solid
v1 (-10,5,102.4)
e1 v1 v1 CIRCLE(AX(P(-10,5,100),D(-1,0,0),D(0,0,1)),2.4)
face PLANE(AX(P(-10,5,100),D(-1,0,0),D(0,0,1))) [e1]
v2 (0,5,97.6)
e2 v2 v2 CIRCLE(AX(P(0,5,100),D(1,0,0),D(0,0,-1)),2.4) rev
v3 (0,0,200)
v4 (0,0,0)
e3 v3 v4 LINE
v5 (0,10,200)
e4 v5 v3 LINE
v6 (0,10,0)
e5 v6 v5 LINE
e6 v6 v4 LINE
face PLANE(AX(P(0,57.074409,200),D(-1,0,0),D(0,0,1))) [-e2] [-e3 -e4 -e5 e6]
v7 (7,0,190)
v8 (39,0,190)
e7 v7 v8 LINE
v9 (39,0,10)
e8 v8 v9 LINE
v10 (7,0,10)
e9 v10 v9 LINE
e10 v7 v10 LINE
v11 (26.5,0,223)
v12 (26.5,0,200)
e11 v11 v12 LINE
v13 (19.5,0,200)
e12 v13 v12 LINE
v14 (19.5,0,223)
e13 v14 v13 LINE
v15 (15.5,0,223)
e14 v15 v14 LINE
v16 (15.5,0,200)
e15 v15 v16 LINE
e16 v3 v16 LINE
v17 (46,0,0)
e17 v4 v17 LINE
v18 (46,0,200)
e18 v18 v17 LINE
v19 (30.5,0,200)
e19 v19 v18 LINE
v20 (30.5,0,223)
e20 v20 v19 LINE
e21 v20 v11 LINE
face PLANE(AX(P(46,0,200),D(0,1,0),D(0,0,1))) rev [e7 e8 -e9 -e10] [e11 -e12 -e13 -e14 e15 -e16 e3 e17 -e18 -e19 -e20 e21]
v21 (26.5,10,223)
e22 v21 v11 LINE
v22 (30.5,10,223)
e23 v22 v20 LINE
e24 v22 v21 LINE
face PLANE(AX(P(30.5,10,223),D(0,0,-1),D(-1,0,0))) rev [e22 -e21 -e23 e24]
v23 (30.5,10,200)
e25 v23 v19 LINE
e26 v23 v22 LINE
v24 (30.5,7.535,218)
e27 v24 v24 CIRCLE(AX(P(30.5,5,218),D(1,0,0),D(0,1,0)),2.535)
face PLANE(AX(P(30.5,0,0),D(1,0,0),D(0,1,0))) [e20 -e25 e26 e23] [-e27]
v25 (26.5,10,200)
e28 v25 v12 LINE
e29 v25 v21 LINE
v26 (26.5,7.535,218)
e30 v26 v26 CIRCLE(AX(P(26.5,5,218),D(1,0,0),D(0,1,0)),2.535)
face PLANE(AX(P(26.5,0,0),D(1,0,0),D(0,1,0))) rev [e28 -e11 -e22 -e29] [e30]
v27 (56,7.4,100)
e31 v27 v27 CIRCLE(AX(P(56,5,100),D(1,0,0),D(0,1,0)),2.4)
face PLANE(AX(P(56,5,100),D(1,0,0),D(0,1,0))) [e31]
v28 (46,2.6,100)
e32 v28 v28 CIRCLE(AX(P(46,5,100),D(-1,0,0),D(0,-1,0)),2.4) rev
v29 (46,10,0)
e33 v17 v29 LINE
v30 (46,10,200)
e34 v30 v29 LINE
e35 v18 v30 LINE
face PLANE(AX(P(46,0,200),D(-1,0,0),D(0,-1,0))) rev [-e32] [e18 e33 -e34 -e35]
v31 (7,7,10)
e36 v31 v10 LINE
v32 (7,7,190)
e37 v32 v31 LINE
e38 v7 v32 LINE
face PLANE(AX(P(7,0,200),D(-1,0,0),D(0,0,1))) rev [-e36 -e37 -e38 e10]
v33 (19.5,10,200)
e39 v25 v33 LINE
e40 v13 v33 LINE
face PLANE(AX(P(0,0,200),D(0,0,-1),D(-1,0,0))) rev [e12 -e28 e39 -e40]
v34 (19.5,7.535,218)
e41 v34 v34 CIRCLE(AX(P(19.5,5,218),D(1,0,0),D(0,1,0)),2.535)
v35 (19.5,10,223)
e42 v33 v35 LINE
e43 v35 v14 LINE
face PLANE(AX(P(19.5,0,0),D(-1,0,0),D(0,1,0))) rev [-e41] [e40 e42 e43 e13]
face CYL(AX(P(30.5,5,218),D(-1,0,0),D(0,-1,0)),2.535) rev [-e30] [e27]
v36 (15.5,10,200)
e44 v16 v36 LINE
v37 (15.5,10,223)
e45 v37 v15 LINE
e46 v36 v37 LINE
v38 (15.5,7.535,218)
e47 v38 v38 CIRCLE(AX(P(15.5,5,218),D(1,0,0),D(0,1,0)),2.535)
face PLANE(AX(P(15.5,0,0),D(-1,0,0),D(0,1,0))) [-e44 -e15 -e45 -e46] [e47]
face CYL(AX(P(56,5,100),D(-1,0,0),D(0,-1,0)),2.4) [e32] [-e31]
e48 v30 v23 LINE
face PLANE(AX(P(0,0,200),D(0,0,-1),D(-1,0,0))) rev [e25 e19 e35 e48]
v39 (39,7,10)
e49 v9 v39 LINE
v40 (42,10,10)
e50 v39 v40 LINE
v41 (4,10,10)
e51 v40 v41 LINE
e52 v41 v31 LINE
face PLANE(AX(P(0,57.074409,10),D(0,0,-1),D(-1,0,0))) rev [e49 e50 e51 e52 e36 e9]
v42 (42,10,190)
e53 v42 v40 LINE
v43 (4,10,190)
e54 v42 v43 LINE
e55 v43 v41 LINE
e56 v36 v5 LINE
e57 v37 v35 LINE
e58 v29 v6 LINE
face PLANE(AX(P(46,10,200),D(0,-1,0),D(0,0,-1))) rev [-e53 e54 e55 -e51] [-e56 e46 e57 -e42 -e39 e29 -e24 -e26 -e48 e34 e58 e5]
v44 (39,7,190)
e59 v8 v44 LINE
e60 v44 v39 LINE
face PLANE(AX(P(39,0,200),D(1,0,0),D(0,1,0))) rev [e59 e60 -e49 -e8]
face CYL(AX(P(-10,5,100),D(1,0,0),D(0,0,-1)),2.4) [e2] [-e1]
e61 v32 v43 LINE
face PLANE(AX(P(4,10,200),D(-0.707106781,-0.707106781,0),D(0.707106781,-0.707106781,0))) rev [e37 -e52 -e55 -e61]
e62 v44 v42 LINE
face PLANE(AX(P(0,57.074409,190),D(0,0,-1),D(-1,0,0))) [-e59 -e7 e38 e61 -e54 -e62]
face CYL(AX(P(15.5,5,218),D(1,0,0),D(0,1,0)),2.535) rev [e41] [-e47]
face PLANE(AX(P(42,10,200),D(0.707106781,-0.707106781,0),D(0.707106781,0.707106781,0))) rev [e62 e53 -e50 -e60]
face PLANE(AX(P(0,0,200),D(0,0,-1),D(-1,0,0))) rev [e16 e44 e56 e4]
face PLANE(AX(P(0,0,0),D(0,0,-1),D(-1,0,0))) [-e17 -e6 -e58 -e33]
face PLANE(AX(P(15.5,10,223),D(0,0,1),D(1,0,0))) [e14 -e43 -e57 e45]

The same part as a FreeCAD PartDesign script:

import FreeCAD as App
import Part
import Sketcher

V = App.Vector
Q = App.Units.Quantity


def add_polygon(sketch, points):
    """Adds a closed chain of lines whose ends are joined by coincident constraints."""
    first, n = sketch.GeometryCount, len(points)
    for a, b in zip(points, points[1:] + points[:1]):
        sketch.addGeometry(Part.LineSegment(App.Vector(*a, 0), App.Vector(*b, 0)), False)
    for i in range(n):
        sketch.addConstraint(Sketcher.Constraint("Coincident", first + i, 2, first + (i + 1) % n, 1))

doc = App.newDocument("Part")
params = doc.addObject("Spreadsheet::Sheet", "Params")
for row, (alias, value) in enumerate([
    ("sketch1_width", "4 mm"),
    ("sketch1_width2", "7 mm"),
    ("sketch1_height", "10 mm"),
    ("pad1_length", "200 mm"),
    ("sketch2_diameter", "4.8 mm"),
    ("pad2_length", "10 mm"),
    ("sketch3_width", "7 mm"),
    ("sketch3_width2", "4 mm"),
    ("sketch3_height", "10 mm"),
    ("pad3_length", "200 mm"),
    ("sketch4_diameter", "4.8 mm"),
    ("pad4_length", "10 mm"),
    ("sketch5_width", "46 mm"),
    ("sketch5_height", "10 mm"),
    ("pad5_length", "10 mm"),
    ("sketch6_diameter", "5.07 mm"),
    ("sketch6_width", "10 mm"),
    ("sketch6_height", "33 mm"),
    ("pad6_length", "4 mm"),
], start=1):
    params.set(f"A{row}", alias)
    params.set(f"B{row}", "=" + value)
    params.setAlias(f"B{row}", alias)

body = doc.addObject("PartDesign::Body", "Body")

# Sketch on XY plane
sketch1 = body.newObject("Sketcher::SketchObject", "Sketch")
sketch1.AttachmentSupport = (doc.getObject("XY_Plane"), [""])
sketch1.MapMode = "FlatFace"
add_polygon(sketch1, [(7, 7), (4, 10), (0, 10), (0, 0), (7, 0)])  # lines 0-4
sketch1.addConstraint([
    Sketcher.Constraint("Horizontal", 1),
    Sketcher.Constraint("Vertical", 2),
    Sketcher.Constraint("Horizontal", 3),
    Sketcher.Constraint("Vertical", 4),
    Sketcher.Constraint("Coincident", 2, 2, -1, 1),
    Sketcher.Constraint("Equal", 3, 4),
    Sketcher.Constraint("DistanceX", 1, 2, 1, 1, Q("4 mm")),
    Sketcher.Constraint("DistanceX", 3, 1, 3, 2, Q("7 mm")),
    Sketcher.Constraint("DistanceY", 2, 2, 2, 1, Q("10 mm")),
])
sketch1.setExpression("Constraints[11]", "Params.sketch1_width")
sketch1.setExpression("Constraints[12]", "Params.sketch1_width2")
sketch1.setExpression("Constraints[13]", "Params.sketch1_height")
pad1 = body.newObject("PartDesign::Pad", "Pad")
pad1.Profile = sketch1
pad1.setExpression("Length", "Params.pad1_length")

# Sketch on YZ plane
sketch2 = body.newObject("Sketcher::SketchObject", "Sketch001")
sketch2.AttachmentSupport = (doc.getObject("YZ_Plane"), [""])
sketch2.MapMode = "FlatFace"
sketch2.addGeometry(Part.Circle(V(5, 100, 0), V(0, 0, 1), 2.4), False)
sketch2.addConstraint([
    Sketcher.Constraint("Diameter", 0, Q("4.8 mm")),
    Sketcher.Constraint("DistanceX", -1, 1, 0, 3, Q("5 mm")),
    Sketcher.Constraint("DistanceY", -1, 1, 0, 3, Q("100 mm")),
])
sketch2.setExpression("Constraints[0]", "Params.sketch2_diameter")
pad2 = body.newObject("PartDesign::Pad", "Pad001")
pad2.Profile = sketch2
pad2.setExpression("Length", "Params.pad2_length")
pad2.Reversed = True
body2 = doc.addObject("PartDesign::Body", "Body001")

# Sketch on XY plane
sketch3 = body2.newObject("Sketcher::SketchObject", "Sketch002")
sketch3.AttachmentSupport = (doc.getObject("XY_Plane001"), [""])
sketch3.MapMode = "FlatFace"
add_polygon(sketch3, [(39, 7), (39, 0), (46, 0), (46, 10), (42, 10)])  # lines 0-4
sketch3.addConstraint([
    Sketcher.Constraint("Vertical", 0),
    Sketcher.Constraint("Horizontal", 1),
    Sketcher.Constraint("Vertical", 2),
    Sketcher.Constraint("Horizontal", 3),
    Sketcher.Constraint("PointOnObject", 0, 2, -1),
    Sketcher.Constraint("Equal", 1, 0),
    Sketcher.Constraint("DistanceX", 1, 1, 1, 2, Q("7 mm")),
    Sketcher.Constraint("DistanceX", 3, 2, 3, 1, Q("4 mm")),
    Sketcher.Constraint("DistanceY", 2, 1, 2, 2, Q("10 mm")),
    Sketcher.Constraint("DistanceX", -1, 1, 0, 2, Q("39 mm")),
])
sketch3.setExpression("Constraints[11]", "Params.sketch3_width")
sketch3.setExpression("Constraints[12]", "Params.sketch3_width2")
sketch3.setExpression("Constraints[13]", "Params.sketch3_height")
pad3 = body2.newObject("PartDesign::Pad", "Pad002")
pad3.Profile = sketch3
pad3.setExpression("Length", "Params.pad3_length")

# Sketch on YZ plane
sketch4 = body2.newObject("Sketcher::SketchObject", "Sketch003")
sketch4.AttachmentSupport = (doc.getObject("YZ_Plane001"), [""])
sketch4.MapMode = "FlatFace"
sketch4.AttachmentOffset = App.Placement(V(0, 0, 46), App.Rotation())
sketch4.addGeometry(Part.Circle(V(5, 100, 0), V(0, 0, 1), 2.4), False)
sketch4.addConstraint([
    Sketcher.Constraint("Diameter", 0, Q("4.8 mm")),
    Sketcher.Constraint("DistanceX", -1, 1, 0, 3, Q("5 mm")),
    Sketcher.Constraint("DistanceY", -1, 1, 0, 3, Q("100 mm")),
])
sketch4.setExpression("Constraints[0]", "Params.sketch4_diameter")
pad4 = body2.newObject("PartDesign::Pad", "Pad003")
pad4.Profile = sketch4
pad4.setExpression("Length", "Params.pad4_length")
body.AllowCompound = True
doc.recompute()

boolean = body.newObject("PartDesign::Boolean", "Boolean")
boolean.Type = "Fuse"
boolean.addObjects([body2])

# Sketch on XZ plane
sketch5 = body.newObject("Sketcher::SketchObject", "Sketch004")
sketch5.AttachmentSupport = (doc.getObject("XZ_Plane"), [""])
sketch5.MapMode = "FlatFace"
add_polygon(sketch5, [(0, 200), (0, 190), (46, 190), (46, 200)])  # lines 0-3
sketch5.addConstraint([
    Sketcher.Constraint("Vertical", 0),
    Sketcher.Constraint("Horizontal", 1),
    Sketcher.Constraint("Vertical", 2),
    Sketcher.Constraint("Horizontal", 3),
    Sketcher.Constraint("PointOnObject", 0, 2, -2),
    Sketcher.Constraint("DistanceX", 1, 1, 1, 2, Q("46 mm")),
    Sketcher.Constraint("DistanceY", 0, 2, 0, 1, Q("10 mm")),
    Sketcher.Constraint("DistanceY", -1, 1, 0, 2, Q("190 mm")),
])
sketch5.setExpression("Constraints[9]", "Params.sketch5_width")
sketch5.setExpression("Constraints[10]", "Params.sketch5_height")
pad5 = body.newObject("PartDesign::Pad", "Pad004")
pad5.Profile = sketch5
pad5.setExpression("Length", "Params.pad5_length")
pad5.Reversed = True
doc.recompute()

datumplane = body.newObject("PartDesign::Plane", "DatumPlane")
datumplane.AttachmentSupport = (doc.getObject("XY_Plane"), [""])
datumplane.MapMode = "FlatFace"
datumplane.AttachmentOffset = App.Placement(V(0, 0, 100), App.Rotation())
mirrored = body.newObject("PartDesign::Mirrored", "Mirrored")
mirrored.Originals = [pad5]
mirrored.MirrorPlane = (datumplane, [""])
body.Tip = mirrored

# Sketch on YZ plane
sketch6 = body.newObject("Sketcher::SketchObject", "Sketch005")
sketch6.AttachmentSupport = (doc.getObject("YZ_Plane"), [""])
sketch6.MapMode = "FlatFace"
sketch6.AttachmentOffset = App.Placement(V(0, 0, 26.5), App.Rotation())
add_polygon(sketch6, [(10, 223), (0, 223), (0, 190), (10, 190)])  # lines 0-3
sketch6.addGeometry(Part.Circle(V(5, 218, 0), V(0, 0, 1), 2.5), False)  # 4
sketch6.addConstraint([
    Sketcher.Constraint("Horizontal", 0),
    Sketcher.Constraint("Vertical", 1),
    Sketcher.Constraint("Horizontal", 2),
    Sketcher.Constraint("Vertical", 3),
    Sketcher.Constraint("PointOnObject", 0, 2, -2),
    Sketcher.Constraint("Diameter", 4, Q("5.07 mm")),
    Sketcher.Constraint("DistanceX", 0, 2, 0, 1, Q("10 mm")),
    Sketcher.Constraint("DistanceY", 1, 2, 1, 1, Q("33 mm")),
    Sketcher.Constraint("DistanceX", -1, 1, 4, 3, Q("5 mm")),
    Sketcher.Constraint("DistanceY", -1, 1, 4, 3, Q("218 mm")),
    Sketcher.Constraint("DistanceY", -1, 1, 0, 2, Q("223 mm")),
])
sketch6.setExpression("Constraints[9]", "Params.sketch6_diameter")
sketch6.setExpression("Constraints[10]", "Params.sketch6_width")
sketch6.setExpression("Constraints[11]", "Params.sketch6_height")
pad6 = body.newObject("PartDesign::Pad", "Pad005")
pad6.Profile = sketch6
pad6.setExpression("Length", "Params.pad6_length")
doc.recompute()

datumplane2 = body.newObject("PartDesign::Plane", "DatumPlane001")
datumplane2.AttachmentSupport = (doc.getObject("YZ_Plane"), [""])
datumplane2.MapMode = "FlatFace"
datumplane2.AttachmentOffset = App.Placement(V(0, 0, 23), App.Rotation())
mirrored2 = body.newObject("PartDesign::Mirrored", "Mirrored001")
mirrored2.Originals = [pad6]
mirrored2.MirrorPlane = (datumplane2, [""])
body.Tip = mirrored2

doc.recompute()
